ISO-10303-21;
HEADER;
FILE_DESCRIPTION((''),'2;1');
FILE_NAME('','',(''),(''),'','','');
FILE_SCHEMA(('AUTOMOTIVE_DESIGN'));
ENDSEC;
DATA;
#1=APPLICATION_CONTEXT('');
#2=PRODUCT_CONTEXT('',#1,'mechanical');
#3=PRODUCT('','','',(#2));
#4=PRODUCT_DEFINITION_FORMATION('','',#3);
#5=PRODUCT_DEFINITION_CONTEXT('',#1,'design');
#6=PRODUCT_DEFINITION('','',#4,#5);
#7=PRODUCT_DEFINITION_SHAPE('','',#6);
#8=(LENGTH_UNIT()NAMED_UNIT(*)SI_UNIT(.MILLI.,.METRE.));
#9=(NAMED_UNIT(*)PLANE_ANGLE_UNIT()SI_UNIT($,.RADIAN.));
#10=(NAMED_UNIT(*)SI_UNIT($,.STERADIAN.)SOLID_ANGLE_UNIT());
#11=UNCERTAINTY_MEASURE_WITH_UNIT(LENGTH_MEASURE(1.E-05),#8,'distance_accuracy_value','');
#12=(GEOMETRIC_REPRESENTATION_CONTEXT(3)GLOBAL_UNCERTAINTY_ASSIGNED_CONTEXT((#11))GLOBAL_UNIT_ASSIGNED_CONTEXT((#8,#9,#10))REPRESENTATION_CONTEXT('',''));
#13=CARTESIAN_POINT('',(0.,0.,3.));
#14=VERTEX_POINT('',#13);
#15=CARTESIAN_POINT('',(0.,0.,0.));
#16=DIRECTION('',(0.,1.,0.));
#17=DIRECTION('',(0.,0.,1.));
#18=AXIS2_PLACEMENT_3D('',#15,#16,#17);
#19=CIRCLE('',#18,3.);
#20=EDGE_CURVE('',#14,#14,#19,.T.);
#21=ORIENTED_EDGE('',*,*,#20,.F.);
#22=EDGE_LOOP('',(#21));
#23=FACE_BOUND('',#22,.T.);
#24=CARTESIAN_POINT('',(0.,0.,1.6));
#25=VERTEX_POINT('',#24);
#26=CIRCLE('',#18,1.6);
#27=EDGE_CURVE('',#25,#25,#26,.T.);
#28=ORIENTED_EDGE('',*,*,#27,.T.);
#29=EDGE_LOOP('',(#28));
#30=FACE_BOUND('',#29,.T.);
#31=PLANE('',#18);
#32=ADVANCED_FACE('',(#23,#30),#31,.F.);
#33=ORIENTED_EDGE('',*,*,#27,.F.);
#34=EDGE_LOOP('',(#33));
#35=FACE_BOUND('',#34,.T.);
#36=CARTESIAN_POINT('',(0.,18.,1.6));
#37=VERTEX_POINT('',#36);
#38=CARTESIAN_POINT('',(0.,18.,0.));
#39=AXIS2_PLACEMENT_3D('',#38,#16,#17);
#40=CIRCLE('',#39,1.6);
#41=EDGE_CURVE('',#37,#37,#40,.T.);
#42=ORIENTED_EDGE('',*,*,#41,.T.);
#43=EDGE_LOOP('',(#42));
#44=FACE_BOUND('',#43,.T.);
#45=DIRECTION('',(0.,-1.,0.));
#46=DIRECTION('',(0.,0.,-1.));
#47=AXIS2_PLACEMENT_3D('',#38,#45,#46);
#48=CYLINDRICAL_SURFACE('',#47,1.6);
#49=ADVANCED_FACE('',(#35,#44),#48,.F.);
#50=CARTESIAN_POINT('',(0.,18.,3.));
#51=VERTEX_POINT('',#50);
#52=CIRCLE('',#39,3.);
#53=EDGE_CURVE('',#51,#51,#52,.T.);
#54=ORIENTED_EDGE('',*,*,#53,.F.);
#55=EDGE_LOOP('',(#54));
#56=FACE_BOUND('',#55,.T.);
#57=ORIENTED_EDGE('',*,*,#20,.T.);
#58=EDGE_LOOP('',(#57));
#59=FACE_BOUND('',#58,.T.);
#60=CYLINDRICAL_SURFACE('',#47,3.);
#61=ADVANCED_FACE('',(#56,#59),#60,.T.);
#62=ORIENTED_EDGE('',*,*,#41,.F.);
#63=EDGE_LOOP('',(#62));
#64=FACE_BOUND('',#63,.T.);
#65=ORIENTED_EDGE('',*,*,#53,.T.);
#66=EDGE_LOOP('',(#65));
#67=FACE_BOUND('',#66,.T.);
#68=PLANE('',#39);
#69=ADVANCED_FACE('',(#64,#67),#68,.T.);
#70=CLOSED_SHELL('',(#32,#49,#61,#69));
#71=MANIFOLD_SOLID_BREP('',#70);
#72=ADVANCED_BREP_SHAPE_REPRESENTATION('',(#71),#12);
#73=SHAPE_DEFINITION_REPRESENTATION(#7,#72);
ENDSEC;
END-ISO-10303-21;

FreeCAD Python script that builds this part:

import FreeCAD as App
import Part
import Sketcher

V = App.Vector

doc = App.newDocument("Part")
params = doc.addObject("Spreadsheet::Sheet", "Params")
for row, (alias, value) in enumerate([
    ("sketch1_diameter", "6 mm"),
    ("sketch1_diameter2", "3.2 mm"),
    ("pad1_length", "18 mm"),
], start=1):
    params.set(f"A{row}", alias)
    params.set(f"B{row}", "=" + value)
    params.setAlias(f"B{row}", alias)

body = doc.addObject("PartDesign::Body", "Body")

# Sketch on XZ plane
sketch1 = body.newObject("Sketcher::SketchObject", "Sketch")
sketch1.AttachmentSupport = (doc.getObject("XZ_Plane"), [""])
sketch1.MapMode = "FlatFace"
sketch1.addGeometry([
    Part.Circle(V(0, 0, 0), V(0, 0, 1), 3),
    Part.Circle(V(0, 0, 0), V(0, 0, 1), 1.6),
], False)
sketch1.addConstraint([
    Sketcher.Constraint("Coincident", 0, 3, -1, 1),
    Sketcher.Constraint("Coincident", 1, 3, -1, 1),
    Sketcher.Constraint("Diameter", 0, 6.0),
    Sketcher.Constraint("Diameter", 1, 3.2),
])
sketch1.setExpression("Constraints[2]", "Params.sketch1_diameter")
sketch1.setExpression("Constraints[3]", "Params.sketch1_diameter2")
pad1 = body.newObject("PartDesign::Pad", "Pad")
pad1.Profile = sketch1
pad1.setExpression("Length", "Params.pad1_length")
pad1.Reversed = True

doc.recompute()
